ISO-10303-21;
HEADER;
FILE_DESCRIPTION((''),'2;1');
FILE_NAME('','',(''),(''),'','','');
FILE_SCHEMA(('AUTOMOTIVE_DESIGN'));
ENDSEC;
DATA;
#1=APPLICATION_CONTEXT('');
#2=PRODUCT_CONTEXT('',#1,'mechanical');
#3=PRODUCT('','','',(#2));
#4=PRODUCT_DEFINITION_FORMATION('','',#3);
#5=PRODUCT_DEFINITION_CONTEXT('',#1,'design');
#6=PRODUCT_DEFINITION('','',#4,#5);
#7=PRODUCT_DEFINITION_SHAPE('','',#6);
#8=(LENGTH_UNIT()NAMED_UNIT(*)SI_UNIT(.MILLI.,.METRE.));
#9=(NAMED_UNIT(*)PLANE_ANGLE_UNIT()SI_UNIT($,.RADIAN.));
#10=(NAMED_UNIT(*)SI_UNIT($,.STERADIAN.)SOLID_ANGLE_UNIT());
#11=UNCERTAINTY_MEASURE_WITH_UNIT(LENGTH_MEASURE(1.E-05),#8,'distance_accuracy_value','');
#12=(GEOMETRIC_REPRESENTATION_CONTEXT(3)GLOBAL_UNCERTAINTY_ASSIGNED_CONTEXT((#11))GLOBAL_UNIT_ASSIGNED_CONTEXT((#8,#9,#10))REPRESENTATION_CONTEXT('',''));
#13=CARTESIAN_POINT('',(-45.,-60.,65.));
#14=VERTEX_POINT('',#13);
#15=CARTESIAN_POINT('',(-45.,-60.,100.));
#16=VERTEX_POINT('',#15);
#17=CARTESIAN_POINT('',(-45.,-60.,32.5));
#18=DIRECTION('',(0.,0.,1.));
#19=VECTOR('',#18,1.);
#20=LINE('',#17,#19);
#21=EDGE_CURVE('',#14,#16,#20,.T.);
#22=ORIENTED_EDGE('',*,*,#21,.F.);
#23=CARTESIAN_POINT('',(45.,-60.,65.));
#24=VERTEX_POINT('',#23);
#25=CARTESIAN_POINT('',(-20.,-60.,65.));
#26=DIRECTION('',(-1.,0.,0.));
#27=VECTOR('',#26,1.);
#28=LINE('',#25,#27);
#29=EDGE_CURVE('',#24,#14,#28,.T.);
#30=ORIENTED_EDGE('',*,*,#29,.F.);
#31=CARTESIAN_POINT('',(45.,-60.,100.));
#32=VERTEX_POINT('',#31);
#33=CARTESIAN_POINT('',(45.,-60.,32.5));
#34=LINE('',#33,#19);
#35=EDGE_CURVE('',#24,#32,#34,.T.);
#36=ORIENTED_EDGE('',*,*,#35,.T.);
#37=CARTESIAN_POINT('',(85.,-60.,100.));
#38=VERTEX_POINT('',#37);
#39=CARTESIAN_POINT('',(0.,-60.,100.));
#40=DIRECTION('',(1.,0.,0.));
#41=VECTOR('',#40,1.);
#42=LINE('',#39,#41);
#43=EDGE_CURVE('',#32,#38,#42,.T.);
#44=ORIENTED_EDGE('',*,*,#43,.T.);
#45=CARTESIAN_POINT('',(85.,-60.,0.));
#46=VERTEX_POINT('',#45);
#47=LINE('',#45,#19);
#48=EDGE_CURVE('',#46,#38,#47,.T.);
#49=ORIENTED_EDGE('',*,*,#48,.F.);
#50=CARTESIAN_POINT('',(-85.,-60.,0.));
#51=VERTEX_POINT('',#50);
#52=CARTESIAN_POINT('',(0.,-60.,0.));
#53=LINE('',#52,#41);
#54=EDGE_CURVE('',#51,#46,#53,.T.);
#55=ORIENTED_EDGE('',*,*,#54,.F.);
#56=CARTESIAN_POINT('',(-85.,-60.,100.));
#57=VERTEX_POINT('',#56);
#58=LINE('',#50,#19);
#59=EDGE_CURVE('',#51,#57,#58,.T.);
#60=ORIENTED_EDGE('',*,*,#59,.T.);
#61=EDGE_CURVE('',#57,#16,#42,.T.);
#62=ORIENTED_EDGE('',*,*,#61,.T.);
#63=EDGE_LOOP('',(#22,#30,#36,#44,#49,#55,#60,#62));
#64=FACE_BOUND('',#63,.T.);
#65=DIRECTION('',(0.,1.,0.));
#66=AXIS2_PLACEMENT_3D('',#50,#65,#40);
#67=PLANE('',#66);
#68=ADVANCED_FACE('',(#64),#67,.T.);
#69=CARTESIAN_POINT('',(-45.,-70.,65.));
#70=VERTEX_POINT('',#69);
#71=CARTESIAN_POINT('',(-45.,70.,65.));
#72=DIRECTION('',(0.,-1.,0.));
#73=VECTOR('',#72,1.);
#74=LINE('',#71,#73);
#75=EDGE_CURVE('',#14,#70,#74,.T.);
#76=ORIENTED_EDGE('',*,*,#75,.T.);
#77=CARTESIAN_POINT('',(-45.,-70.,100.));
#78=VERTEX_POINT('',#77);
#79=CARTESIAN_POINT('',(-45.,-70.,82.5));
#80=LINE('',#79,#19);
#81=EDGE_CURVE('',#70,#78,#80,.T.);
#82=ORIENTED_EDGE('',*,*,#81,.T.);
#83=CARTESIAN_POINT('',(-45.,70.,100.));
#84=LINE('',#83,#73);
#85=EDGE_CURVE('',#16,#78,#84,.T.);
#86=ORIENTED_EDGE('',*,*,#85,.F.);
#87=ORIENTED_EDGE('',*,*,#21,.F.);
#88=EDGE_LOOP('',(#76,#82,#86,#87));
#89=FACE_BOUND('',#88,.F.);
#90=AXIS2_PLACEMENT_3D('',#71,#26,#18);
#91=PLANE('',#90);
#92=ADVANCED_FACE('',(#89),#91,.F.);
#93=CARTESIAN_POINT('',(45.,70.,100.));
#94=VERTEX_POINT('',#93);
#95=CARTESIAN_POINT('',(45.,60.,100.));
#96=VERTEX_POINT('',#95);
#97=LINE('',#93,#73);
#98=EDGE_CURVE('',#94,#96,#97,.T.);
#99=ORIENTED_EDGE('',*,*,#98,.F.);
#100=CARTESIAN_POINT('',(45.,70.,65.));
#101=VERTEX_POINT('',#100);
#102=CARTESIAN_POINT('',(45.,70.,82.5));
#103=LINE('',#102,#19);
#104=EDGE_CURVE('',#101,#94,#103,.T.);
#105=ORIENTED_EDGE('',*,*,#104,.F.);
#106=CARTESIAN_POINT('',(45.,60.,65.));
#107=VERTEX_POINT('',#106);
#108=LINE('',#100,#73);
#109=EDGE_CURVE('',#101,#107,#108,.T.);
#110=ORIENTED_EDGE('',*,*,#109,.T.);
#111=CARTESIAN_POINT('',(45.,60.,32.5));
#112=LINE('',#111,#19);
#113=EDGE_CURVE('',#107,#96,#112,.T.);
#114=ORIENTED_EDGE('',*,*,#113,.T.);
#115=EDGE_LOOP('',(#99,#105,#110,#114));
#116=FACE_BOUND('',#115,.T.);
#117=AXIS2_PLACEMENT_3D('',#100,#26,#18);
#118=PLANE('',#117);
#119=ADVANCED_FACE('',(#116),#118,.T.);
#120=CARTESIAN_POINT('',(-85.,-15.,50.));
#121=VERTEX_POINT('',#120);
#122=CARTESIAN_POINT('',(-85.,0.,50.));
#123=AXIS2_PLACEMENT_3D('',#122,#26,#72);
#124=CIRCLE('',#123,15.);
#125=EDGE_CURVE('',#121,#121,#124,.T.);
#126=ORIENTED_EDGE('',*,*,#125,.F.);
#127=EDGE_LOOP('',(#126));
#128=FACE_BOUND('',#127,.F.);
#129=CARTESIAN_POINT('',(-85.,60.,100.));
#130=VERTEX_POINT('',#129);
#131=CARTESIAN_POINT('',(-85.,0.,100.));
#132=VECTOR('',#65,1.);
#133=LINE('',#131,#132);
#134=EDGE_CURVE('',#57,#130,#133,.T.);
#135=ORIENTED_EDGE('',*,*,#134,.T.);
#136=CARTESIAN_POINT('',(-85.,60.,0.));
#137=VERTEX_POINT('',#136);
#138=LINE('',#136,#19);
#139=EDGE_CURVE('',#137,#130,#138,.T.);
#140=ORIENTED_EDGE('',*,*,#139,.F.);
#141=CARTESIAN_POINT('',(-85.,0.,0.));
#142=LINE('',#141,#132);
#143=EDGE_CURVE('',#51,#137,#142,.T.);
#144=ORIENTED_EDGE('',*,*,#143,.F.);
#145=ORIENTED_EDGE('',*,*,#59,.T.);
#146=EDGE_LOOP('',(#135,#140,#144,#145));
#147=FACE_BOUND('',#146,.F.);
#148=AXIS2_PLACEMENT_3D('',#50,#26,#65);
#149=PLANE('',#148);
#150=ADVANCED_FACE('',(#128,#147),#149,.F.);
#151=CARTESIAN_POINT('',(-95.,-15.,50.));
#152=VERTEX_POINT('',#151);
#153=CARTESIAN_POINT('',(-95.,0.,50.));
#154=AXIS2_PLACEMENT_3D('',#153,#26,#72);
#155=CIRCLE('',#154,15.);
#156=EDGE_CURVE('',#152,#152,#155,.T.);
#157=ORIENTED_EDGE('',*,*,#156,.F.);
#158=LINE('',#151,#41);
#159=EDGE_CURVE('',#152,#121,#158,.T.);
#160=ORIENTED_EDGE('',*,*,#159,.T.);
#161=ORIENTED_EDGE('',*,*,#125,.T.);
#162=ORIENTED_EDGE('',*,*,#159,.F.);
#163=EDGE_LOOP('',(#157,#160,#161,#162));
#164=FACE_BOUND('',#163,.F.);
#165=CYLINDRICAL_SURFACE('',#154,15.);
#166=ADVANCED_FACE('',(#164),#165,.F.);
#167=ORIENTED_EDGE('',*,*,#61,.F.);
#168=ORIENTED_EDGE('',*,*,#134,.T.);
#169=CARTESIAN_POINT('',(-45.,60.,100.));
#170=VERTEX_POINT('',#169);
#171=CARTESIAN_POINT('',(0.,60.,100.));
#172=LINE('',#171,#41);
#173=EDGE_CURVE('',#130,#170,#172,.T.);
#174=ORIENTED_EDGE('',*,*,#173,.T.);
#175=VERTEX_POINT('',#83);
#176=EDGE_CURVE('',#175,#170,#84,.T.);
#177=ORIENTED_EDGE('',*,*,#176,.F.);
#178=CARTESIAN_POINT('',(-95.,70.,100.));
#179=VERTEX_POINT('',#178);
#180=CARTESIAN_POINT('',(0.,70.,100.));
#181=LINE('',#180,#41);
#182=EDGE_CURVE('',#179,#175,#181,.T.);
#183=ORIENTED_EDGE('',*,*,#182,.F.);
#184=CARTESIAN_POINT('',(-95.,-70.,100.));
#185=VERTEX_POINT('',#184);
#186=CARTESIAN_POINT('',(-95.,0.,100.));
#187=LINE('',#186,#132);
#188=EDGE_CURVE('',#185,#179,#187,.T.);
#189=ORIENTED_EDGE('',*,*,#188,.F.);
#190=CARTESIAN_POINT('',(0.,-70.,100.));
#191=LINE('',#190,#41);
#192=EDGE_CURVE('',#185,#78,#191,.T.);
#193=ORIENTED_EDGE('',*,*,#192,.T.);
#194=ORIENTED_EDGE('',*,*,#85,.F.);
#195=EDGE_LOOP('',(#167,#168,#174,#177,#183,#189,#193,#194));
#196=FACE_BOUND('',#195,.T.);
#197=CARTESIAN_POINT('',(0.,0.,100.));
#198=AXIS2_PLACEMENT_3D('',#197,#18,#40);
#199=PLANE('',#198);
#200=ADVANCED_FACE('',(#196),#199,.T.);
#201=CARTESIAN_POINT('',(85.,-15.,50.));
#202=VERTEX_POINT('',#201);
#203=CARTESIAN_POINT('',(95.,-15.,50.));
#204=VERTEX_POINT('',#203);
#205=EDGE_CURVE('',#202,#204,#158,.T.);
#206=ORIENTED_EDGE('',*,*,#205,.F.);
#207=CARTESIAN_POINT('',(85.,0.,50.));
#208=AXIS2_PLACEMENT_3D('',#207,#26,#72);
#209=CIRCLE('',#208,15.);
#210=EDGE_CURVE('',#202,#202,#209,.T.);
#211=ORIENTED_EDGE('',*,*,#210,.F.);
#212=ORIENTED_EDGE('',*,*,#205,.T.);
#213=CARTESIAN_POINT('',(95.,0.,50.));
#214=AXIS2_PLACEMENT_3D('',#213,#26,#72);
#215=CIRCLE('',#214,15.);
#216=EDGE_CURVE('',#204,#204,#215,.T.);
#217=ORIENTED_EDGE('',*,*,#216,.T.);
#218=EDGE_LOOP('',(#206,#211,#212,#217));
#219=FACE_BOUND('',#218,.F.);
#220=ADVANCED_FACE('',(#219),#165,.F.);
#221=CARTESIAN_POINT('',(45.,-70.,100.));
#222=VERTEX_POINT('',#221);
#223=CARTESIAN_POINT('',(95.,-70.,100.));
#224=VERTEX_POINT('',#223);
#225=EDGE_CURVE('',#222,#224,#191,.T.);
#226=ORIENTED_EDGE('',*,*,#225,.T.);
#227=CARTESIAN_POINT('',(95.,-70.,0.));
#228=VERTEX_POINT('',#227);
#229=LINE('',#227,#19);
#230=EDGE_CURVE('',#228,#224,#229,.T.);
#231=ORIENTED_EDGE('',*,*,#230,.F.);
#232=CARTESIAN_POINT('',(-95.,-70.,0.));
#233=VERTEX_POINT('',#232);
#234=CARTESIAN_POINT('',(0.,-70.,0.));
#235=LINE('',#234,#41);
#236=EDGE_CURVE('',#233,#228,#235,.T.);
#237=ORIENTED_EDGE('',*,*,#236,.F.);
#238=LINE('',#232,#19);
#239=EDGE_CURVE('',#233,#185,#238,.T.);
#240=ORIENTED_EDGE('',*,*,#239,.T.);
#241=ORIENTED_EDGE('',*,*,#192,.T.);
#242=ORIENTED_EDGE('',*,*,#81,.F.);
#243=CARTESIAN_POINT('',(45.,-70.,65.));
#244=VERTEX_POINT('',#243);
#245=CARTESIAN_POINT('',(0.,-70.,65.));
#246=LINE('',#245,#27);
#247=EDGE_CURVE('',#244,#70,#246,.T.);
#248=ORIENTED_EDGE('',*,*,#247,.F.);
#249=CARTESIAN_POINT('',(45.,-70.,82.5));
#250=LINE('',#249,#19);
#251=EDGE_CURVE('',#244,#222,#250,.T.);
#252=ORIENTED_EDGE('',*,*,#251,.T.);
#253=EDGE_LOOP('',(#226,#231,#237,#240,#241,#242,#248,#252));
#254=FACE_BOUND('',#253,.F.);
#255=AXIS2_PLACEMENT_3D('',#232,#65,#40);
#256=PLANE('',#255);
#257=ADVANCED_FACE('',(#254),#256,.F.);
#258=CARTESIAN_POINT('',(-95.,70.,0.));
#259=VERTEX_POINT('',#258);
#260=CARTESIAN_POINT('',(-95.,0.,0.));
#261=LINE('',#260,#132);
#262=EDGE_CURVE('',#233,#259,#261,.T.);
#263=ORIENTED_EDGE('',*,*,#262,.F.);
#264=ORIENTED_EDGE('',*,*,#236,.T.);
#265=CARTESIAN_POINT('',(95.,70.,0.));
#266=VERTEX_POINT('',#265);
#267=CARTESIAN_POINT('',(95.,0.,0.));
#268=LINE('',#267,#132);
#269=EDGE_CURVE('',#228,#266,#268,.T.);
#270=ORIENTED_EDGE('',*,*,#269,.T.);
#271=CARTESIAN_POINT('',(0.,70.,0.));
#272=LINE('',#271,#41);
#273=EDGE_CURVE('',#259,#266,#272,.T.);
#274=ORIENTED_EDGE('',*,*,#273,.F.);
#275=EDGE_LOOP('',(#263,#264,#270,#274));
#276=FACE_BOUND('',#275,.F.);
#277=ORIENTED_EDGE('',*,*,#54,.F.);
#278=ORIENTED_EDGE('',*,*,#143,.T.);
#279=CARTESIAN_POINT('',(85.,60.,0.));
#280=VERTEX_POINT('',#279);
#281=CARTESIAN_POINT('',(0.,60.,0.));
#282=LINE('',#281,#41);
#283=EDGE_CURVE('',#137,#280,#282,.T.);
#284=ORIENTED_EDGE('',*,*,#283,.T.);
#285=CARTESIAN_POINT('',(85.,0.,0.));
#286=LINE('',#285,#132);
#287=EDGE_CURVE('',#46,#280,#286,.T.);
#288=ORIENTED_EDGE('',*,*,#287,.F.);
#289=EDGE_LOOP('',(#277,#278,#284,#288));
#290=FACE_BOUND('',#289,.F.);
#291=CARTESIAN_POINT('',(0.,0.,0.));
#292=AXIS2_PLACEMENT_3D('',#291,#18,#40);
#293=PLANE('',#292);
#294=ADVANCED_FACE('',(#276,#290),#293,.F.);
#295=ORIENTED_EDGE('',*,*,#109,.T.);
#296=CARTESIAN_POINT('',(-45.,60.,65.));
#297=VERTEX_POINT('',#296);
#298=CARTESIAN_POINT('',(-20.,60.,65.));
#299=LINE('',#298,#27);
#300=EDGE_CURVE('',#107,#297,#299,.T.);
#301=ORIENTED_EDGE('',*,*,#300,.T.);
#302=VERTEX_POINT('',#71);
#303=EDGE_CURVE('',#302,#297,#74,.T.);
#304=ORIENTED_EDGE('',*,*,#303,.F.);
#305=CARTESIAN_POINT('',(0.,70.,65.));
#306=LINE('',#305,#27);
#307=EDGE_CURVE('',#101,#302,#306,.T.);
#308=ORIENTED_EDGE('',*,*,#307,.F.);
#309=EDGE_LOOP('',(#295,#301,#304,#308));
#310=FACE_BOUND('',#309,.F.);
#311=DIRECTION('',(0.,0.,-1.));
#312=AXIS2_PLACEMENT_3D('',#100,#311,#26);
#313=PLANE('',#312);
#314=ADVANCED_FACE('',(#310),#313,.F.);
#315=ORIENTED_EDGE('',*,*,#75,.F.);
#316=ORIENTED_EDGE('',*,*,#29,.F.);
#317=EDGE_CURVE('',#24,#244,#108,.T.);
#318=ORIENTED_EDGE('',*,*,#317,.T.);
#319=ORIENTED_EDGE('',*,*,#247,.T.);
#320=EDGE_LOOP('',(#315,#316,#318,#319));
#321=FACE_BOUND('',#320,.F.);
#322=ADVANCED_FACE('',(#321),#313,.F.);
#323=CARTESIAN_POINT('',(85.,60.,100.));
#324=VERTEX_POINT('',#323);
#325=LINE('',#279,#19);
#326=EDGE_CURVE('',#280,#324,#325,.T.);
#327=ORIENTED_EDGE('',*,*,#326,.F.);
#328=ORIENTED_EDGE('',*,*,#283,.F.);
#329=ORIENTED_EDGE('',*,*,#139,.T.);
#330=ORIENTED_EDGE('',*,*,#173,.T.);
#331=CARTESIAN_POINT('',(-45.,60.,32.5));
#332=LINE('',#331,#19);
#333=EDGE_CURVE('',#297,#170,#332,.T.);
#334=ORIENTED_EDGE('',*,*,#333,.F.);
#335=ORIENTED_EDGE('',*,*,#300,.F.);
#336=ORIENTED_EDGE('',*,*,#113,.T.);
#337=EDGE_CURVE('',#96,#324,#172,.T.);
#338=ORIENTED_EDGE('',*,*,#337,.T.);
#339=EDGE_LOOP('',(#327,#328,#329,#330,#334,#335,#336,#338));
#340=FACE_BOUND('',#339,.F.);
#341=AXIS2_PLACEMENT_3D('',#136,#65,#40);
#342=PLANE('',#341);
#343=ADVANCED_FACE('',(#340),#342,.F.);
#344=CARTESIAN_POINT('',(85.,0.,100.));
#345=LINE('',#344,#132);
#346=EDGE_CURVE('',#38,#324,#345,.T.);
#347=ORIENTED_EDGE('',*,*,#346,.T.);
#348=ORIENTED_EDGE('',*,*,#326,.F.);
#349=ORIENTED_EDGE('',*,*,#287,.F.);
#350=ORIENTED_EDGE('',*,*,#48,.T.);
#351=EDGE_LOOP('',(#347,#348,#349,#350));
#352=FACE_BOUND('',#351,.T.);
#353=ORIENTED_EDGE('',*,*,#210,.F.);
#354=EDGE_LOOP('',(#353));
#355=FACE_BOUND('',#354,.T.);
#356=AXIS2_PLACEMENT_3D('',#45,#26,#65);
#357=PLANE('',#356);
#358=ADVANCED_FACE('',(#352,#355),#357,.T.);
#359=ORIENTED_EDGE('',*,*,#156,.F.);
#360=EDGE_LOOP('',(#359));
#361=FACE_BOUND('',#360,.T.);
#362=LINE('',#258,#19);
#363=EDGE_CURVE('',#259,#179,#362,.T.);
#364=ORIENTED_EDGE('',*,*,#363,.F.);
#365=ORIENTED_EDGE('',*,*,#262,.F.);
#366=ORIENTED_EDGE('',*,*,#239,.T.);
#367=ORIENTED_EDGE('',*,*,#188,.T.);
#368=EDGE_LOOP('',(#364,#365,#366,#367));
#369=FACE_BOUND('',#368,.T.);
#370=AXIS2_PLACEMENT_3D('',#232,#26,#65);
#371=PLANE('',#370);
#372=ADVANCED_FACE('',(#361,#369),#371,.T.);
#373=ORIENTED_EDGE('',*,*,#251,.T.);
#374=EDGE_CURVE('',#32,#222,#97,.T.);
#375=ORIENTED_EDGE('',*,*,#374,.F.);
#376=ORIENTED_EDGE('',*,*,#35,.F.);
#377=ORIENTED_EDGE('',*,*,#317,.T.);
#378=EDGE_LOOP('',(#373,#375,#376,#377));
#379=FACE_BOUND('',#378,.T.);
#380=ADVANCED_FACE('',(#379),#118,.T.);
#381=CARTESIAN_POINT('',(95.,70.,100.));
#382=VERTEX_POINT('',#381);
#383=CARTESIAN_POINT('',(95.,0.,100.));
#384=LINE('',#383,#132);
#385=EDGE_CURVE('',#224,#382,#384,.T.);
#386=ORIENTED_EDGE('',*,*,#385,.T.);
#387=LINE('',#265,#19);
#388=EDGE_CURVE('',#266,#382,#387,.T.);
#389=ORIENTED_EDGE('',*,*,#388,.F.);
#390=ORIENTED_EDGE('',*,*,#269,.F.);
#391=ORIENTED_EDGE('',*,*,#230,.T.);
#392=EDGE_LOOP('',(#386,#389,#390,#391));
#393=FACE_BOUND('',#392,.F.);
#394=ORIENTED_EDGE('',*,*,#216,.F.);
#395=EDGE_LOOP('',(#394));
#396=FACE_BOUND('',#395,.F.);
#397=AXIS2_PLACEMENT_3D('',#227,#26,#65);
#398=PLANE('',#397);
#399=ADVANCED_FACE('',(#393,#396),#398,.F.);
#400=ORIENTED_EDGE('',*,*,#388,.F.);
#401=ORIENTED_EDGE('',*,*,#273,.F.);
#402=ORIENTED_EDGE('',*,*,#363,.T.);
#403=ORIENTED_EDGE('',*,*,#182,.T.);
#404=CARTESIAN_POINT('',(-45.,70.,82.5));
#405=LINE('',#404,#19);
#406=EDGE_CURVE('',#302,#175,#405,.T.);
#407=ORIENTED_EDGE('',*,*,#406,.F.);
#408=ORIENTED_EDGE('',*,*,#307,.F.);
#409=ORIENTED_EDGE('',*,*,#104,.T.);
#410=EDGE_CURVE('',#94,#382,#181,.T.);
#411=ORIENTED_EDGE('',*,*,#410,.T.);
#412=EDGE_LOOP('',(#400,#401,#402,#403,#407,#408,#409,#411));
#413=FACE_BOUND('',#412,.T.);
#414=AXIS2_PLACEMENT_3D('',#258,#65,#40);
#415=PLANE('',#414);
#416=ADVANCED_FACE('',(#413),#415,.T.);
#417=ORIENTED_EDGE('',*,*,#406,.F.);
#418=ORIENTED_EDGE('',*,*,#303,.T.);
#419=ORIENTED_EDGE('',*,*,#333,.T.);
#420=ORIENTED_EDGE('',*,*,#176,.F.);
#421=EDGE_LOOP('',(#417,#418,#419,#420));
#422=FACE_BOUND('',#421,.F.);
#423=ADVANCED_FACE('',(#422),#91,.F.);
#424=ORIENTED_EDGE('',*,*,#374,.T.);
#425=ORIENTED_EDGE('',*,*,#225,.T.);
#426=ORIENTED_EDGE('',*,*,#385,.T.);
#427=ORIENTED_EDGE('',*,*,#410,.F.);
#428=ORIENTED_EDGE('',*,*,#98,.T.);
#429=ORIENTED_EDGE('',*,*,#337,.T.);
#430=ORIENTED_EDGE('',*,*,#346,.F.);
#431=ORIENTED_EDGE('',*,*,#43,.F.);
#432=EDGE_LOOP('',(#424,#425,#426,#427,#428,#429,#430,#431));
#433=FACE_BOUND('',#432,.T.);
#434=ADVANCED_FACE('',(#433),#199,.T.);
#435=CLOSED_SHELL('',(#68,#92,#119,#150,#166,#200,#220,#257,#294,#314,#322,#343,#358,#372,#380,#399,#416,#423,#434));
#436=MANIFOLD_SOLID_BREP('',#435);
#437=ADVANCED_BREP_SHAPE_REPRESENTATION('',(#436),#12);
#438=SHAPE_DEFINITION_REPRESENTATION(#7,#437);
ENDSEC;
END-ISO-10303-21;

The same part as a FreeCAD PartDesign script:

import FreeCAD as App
import Part
import Sketcher


def add_polygon(sketch, points):
    """Adds a closed chain of lines whose ends are joined by coincident constraints."""
    first, n = sketch.GeometryCount, len(points)
    for a, b in zip(points, points[1:] + points[:1]):
        sketch.addGeometry(Part.LineSegment(App.Vector(*a, 0), App.Vector(*b, 0)), False)
    for i in range(n):
        sketch.addConstraint(Sketcher.Constraint("Coincident", first + i, 2, first + (i + 1) % n, 1))

doc = App.newDocument("Part")
body = doc.addObject("PartDesign::Body", "Body")

sketch1 = body.newObject("Sketcher::SketchObject", "Sketch")
sketch1.AttachmentSupport = (doc.getObject("XY_Plane"), [""])
sketch1.MapMode = "FlatFace"
add_polygon(sketch1, [(-95, 70), (-95, -70), (95, -70), (95, 70)])
add_polygon(sketch1, [(85, -60), (-85, -60), (-85, 60), (85, 60)])
sketch1.addConstraint(Sketcher.Constraint("Vertical", 0))
sketch1.addConstraint(Sketcher.Constraint("Horizontal", 1))
sketch1.addConstraint(Sketcher.Constraint("Vertical", 2))
sketch1.addConstraint(Sketcher.Constraint("Horizontal", 3))
sketch1.addConstraint(Sketcher.Constraint("Horizontal", 4))
sketch1.addConstraint(Sketcher.Constraint("Vertical", 5))
sketch1.addConstraint(Sketcher.Constraint("Horizontal", 6))
sketch1.addConstraint(Sketcher.Constraint("Vertical", 7))
sketch1.addConstraint(Sketcher.Constraint("Symmetric", 0, 2, 2, 2, -1, 1))
sketch1.addConstraint(Sketcher.Constraint("Symmetric", 4, 2, 6, 2, -1, 1))
sketch1.addConstraint(Sketcher.Constraint("DistanceX", 1, 1, 1, 2, 190.0))
sketch1.addConstraint(Sketcher.Constraint("DistanceX", 4, 2, 4, 1, 170.0))
sketch1.addConstraint(Sketcher.Constraint("DistanceY", 0, 2, 0, 1, 140.0))
sketch1.addConstraint(Sketcher.Constraint("DistanceY", 5, 1, 5, 2, 120.0))
pad1 = body.newObject("PartDesign::Pad", "Pad")
pad1.Profile = sketch1
pad1.Length = 100

sketch2 = body.newObject("Sketcher::SketchObject", "Sketch001")
sketch2.AttachmentSupport = (doc.getObject("YZ_Plane"), [""])
sketch2.MapMode = "FlatFace"
sketch2.AttachmentOffset = App.Placement(App.Vector(0, 0, -95), App.Rotation())
sketch2.addGeometry(Part.Circle(App.Vector(0, 50, 0), App.Vector(0, 0, 1), 15), False)
sketch2.addConstraint(Sketcher.Constraint("PointOnObject", 0, 3, -2))
sketch2.addConstraint(Sketcher.Constraint("Diameter", 0, 30.0))
sketch2.addConstraint(Sketcher.Constraint("DistanceY", -1, 1, 0, 3, 50.0))
pocket1 = body.newObject("PartDesign::Pocket", "Pocket")
pocket1.Profile = sketch2
pocket1.Type = "ThroughAll"
pocket1.Reversed = True

sketch3 = body.newObject("Sketcher::SketchObject", "Sketch002")
sketch3.AttachmentSupport = (doc.getObject("XZ_Plane"), [""])
sketch3.MapMode = "FlatFace"
sketch3.AttachmentOffset = App.Placement(App.Vector(0, 0, -70), App.Rotation())
add_polygon(sketch3, [(45, 100), (45, 65), (-45, 65), (-45, 100)])
sketch3.addConstraint(Sketcher.Constraint("Vertical", 0))
sketch3.addConstraint(Sketcher.Constraint("Horizontal", 1))
sketch3.addConstraint(Sketcher.Constraint("Vertical", 2))
sketch3.addConstraint(Sketcher.Constraint("Horizontal", 3))
sketch3.addConstraint(Sketcher.Constraint("DistanceX", 1, 2, 1, 1, 90.0))
sketch3.addConstraint(Sketcher.Constraint("DistanceY", 0, 2, 0, 1, 35.0))
sketch3.addConstraint(Sketcher.Constraint("DistanceX", -1, 1, 0, 2, 45.0))
sketch3.addConstraint(Sketcher.Constraint("DistanceY", -1, 1, 0, 2, 65.0))
pocket2 = body.newObject("PartDesign::Pocket", "Pocket001")
pocket2.Profile = sketch3
pocket2.Type = "ThroughAll"
pocket2.Reversed = True

doc.recompute()
